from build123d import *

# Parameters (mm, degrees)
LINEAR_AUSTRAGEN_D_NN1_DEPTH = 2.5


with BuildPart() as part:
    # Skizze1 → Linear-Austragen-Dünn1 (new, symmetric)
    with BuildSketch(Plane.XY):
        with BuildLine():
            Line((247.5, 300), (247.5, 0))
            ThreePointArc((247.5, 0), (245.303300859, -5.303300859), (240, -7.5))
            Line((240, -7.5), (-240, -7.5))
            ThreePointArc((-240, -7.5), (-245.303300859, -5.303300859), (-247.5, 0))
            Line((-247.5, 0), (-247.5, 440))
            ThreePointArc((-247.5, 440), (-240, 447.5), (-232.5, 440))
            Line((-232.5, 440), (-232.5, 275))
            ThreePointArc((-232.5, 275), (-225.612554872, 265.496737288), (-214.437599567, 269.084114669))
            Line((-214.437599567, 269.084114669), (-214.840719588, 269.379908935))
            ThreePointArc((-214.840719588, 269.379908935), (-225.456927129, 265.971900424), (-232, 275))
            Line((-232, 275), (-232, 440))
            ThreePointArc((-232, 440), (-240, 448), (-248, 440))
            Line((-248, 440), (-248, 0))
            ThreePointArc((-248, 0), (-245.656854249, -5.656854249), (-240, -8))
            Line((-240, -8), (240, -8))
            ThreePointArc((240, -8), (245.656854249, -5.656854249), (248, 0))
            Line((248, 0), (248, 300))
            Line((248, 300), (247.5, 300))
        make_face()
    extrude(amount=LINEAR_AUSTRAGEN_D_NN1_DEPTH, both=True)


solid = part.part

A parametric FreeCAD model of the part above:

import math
import FreeCAD as App
import Part
import Sketcher

V = App.Vector

doc = App.newDocument("Part")
params = doc.addObject("Spreadsheet::Sheet", "Params")
for row, (alias, value) in enumerate([
    ("sketch1_radius", "10 mm"),
    ("sketch1_radius2", "8 mm"),
    ("sketch1_radius3", "7.5 mm"),
    ("sketch1_width", "480 mm"),
    ("sketch1_height", "300 mm"),
    ("pad1_length", "5 mm"),
], start=1):
    params.set(f"A{row}", alias)
    params.set(f"B{row}", "=" + value)
    params.setAlias(f"B{row}", alias)

body = doc.addObject("PartDesign::Body", "Body")

# Sketch on XY plane
sketch1 = body.newObject("Sketcher::SketchObject", "Sketch")
sketch1.AttachmentSupport = (doc.getObject("XY_Plane"), [""])
sketch1.MapMode = "FlatFace"
sketch1.addGeometry([
    Part.LineSegment(V(247.5, 300, 0), V(247.5, 0, 0)),  # 0
    Part.ArcOfCircle(Part.Circle(V(240, 0, 0), V(0, 0, 1), 7.5), math.radians(-90), math.radians(0)),  # 1
    Part.LineSegment(V(240, -7.5, 0), V(-240, -7.5, 0)),  # 2
    Part.ArcOfCircle(Part.Circle(V(-240, 0, 0), V(0, 0, 1), 7.5), math.radians(180), math.radians(270)),  # 3
    Part.LineSegment(V(-247.5, 0, 0), V(-247.5, 440, 0)),  # 4
    Part.ArcOfCircle(Part.Circle(V(-240, 440, 0), V(0, 0, 1), 7.5), math.radians(0), math.radians(180)),  # 5
    Part.LineSegment(V(-232.5, 440, 0), V(-232.5, 275, 0)),  # 6
    Part.ArcOfCircle(Part.Circle(V(-222.5, 275, 0), V(0, 0, 1), 10), math.radians(180), math.radians(324)),  # 7
    Part.LineSegment(V(-214.44, 269.08, 0), V(-214.84, 269.38, 0)),  # 8
    Part.ArcOfCircle(Part.Circle(V(-222.5, 275, 0), V(0, 0, 1), 9.5), math.radians(180), math.radians(324)),  # 9
    Part.LineSegment(V(-232, 275, 0), V(-232, 440, 0)),  # 10
    Part.ArcOfCircle(Part.Circle(V(-240, 440, 0), V(0, 0, 1), 8), math.radians(0), math.radians(180)),  # 11
    Part.LineSegment(V(-248, 440, 0), V(-248, 0, 0)),  # 12
    Part.ArcOfCircle(Part.Circle(V(-240, 0, 0), V(0, 0, 1), 8), math.radians(-180), math.radians(-90)),  # 13
    Part.LineSegment(V(-240, -8, 0), V(240, -8, 0)),  # 14
    Part.ArcOfCircle(Part.Circle(V(240, 0, 0), V(0, 0, 1), 8), math.radians(-90), math.radians(0)),  # 15
    Part.LineSegment(V(248, 0, 0), V(248, 300, 0)),  # 16
    Part.LineSegment(V(248, 300, 0), V(247.5, 300, 0)),  # 17
], False)
sketch1.addConstraint([
    Sketcher.Constraint("Tangent", 0, 2, 1, 2),
    Sketcher.Constraint("Tangent", 1, 1, 2, 1),
    Sketcher.Constraint("Tangent", 2, 2, 3, 2),
    Sketcher.Constraint("Tangent", 3, 1, 4, 1),
    Sketcher.Constraint("Tangent", 4, 2, 5, 2),
    Sketcher.Constraint("Tangent", 5, 1, 6, 1),
    Sketcher.Constraint("Tangent", 6, 2, 7, 1),
    Sketcher.Constraint("Coincident", 7, 2, 8, 1),
    Sketcher.Constraint("Coincident", 8, 2, 9, 2),
    Sketcher.Constraint("Tangent", 9, 1, 10, 1),
    Sketcher.Constraint("Tangent", 10, 2, 11, 1),
    Sketcher.Constraint("Tangent", 11, 2, 12, 1),
    Sketcher.Constraint("Tangent", 12, 2, 13, 1),
    Sketcher.Constraint("Tangent", 13, 2, 14, 1),
    Sketcher.Constraint("Tangent", 14, 2, 15, 1),
    Sketcher.Constraint("Tangent", 15, 2, 16, 1),
    Sketcher.Constraint("Coincident", 16, 2, 17, 1),
    Sketcher.Constraint("Coincident", 17, 2, 0, 1),
    Sketcher.Constraint("Vertical", 0),
    Sketcher.Constraint("Horizontal", 2),
    Sketcher.Constraint("Vertical", 4),
    Sketcher.Constraint("Vertical", 6),
    Sketcher.Constraint("Vertical", 10),
    Sketcher.Constraint("Vertical", 12),
    Sketcher.Constraint("Horizontal", 14),
    Sketcher.Constraint("Vertical", 16),
    Sketcher.Constraint("Horizontal", 17),
    Sketcher.Constraint("Coincident", 9, 3, 7, 3),
    Sketcher.Constraint("Coincident", 11, 3, 5, 3),
    Sketcher.Constraint("Coincident", 13, 3, 3, 3),
    Sketcher.Constraint("Coincident", 15, 3, 1, 3),
    Sketcher.Constraint("Equal", 1, 3),
    Sketcher.Constraint("Equal", 3, 5),
    Sketcher.Constraint("Symmetric", 1, 3, 3, 3, -1, 1),
    Sketcher.Constraint("Radius", 7, 10.0),
    Sketcher.Constraint("Radius", 11, 8.0),
    Sketcher.Constraint("Radius", 1, 7.5),
    Sketcher.Constraint("DistanceX", 2, 2, 2, 1, 480.0),
    Sketcher.Constraint("DistanceY", 0, 2, 0, 1, 300.0),
    Sketcher.Constraint("DistanceY", 4, 1, 4, 2, 440.0),
    Sketcher.Constraint("DistanceY", 6, 2, 6, 1, 165.0),
    Sketcher.Constraint("DistanceX", 7, 2, -1, 1, 214.4376),
    Sketcher.Constraint("DistanceX", 8, 2, -1, 1, 214.84072),
])
sketch1.setExpression("Constraints[34]", "Params.sketch1_radius")
sketch1.setExpression("Constraints[35]", "Params.sketch1_radius2")
sketch1.setExpression("Constraints[36]", "Params.sketch1_radius3")
sketch1.setExpression("Constraints[37]", "Params.sketch1_width")
sketch1.setExpression("Constraints[38]", "Params.sketch1_height")
pad1 = body.newObject("PartDesign::Pad", "Pad")
pad1.Profile = sketch1
pad1.setExpression("Length", "Params.pad1_length")
pad1.Midplane = True

doc.recompute()
